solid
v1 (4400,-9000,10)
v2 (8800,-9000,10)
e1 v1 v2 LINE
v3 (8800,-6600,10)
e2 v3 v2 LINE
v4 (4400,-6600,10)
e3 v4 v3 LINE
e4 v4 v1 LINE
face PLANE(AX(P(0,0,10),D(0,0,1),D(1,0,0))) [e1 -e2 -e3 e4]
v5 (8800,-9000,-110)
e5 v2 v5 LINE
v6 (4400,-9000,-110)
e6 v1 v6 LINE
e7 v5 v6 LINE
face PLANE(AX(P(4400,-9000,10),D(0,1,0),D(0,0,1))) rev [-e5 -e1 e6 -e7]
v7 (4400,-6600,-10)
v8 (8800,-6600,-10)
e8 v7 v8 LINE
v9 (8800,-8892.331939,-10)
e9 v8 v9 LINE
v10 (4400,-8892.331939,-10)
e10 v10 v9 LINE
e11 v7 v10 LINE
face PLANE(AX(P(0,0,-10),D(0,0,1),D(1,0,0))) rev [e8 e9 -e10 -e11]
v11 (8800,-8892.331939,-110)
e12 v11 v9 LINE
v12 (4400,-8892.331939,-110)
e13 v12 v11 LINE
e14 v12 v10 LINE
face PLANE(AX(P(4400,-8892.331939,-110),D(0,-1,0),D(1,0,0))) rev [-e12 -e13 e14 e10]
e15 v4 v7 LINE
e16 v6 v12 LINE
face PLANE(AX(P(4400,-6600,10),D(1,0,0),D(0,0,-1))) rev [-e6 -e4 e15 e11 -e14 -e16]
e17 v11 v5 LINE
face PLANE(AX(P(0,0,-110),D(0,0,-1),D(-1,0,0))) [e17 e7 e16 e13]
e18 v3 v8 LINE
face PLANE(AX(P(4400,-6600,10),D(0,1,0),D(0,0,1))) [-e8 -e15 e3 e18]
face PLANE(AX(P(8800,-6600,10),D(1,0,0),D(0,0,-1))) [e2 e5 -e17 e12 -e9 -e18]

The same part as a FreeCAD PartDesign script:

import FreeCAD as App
import Part
import Sketcher

V = App.Vector

doc = App.newDocument("Part")
body = doc.addObject("PartDesign::Body", "Body")

# Sketch on XY plane
sketch1 = body.newObject("Sketcher::SketchObject", "Sketch")
sketch1.AttachmentSupport = (doc.getObject("XY_Plane"), [""])
sketch1.MapMode = "FlatFace"
sketch1.addGeometry([
    Part.LineSegment(V(4400, -6600, 0), V(4400, -9000, 0)),
    Part.LineSegment(V(4400, -9000, 0), V(8800, -9000, 0)),
    Part.LineSegment(V(8800, -9000, 0), V(8800, -6600, 0)),
    Part.LineSegment(V(8800, -6600, 0), V(4400, -6600, 0)),
], False)
sketch1.addConstraint([
    Sketcher.Constraint("Coincident", 0, 2, 1, 1),
    Sketcher.Constraint("Coincident", 1, 2, 2, 1),
    Sketcher.Constraint("Coincident", 2, 2, 3, 1),
    Sketcher.Constraint("Coincident", 3, 2, 0, 1),
    Sketcher.Constraint("Vertical", 0),
    Sketcher.Constraint("Horizontal", 1),
    Sketcher.Constraint("Vertical", 2),
    Sketcher.Constraint("Horizontal", 3),
    Sketcher.Constraint("DistanceX", 1, 1, 1, 2, 4400.0),
    Sketcher.Constraint("DistanceY", 0, 2, 0, 1, 2400.0),
    Sketcher.Constraint("DistanceX", -1, 1, 0, 2, 4400.0),
    Sketcher.Constraint("DistanceY", 0, 2, -1, 1, 9000.0),
])
pad1 = body.newObject("PartDesign::Pad", "Pad")
pad1.Profile = sketch1
pad1.Length = 20
pad1.Midplane = True

# Sketch on XY plane
sketch2 = body.newObject("Sketcher::SketchObject", "Sketch001")
sketch2.AttachmentSupport = (doc.getObject("XY_Plane"), [""])
sketch2.MapMode = "FlatFace"
sketch2.AttachmentOffset = App.Placement(V(0, 0, -10), App.Rotation())
sketch2.addGeometry([
    Part.LineSegment(V(8800, -8892, 0), V(8800, -9000, 0)),
    Part.LineSegment(V(8800, -9000, 0), V(4400, -9000, 0)),
    Part.LineSegment(V(4400, -9000, 0), V(4400, -8892, 0)),
    Part.LineSegment(V(4400, -8892, 0), V(8800, -8892, 0)),
], False)
sketch2.addConstraint([
    Sketcher.Constraint("Coincident", 0, 2, 1, 1),
    Sketcher.Constraint("Coincident", 1, 2, 2, 1),
    Sketcher.Constraint("Coincident", 2, 2, 3, 1),
    Sketcher.Constraint("Coincident", 3, 2, 0, 1),
    Sketcher.Constraint("Vertical", 0),
    Sketcher.Constraint("Horizontal", 1),
    Sketcher.Constraint("Vertical", 2),
    Sketcher.Constraint("Horizontal", 3),
    Sketcher.Constraint("DistanceX", 1, 2, 1, 1, 4400.0),
    Sketcher.Constraint("DistanceX", -1, 1, 0, 2, 8800.0),
    Sketcher.Constraint("DistanceY", 0, 2, -1, 1, 9000.0),
    Sketcher.Constraint("DistanceY", 0, 2, 0, 1, 107.668061),
])
pad2 = body.newObject("PartDesign::Pad", "Pad001")
pad2.Profile = sketch2
pad2.Length = 100
pad2.Reversed = True

doc.recompute()
